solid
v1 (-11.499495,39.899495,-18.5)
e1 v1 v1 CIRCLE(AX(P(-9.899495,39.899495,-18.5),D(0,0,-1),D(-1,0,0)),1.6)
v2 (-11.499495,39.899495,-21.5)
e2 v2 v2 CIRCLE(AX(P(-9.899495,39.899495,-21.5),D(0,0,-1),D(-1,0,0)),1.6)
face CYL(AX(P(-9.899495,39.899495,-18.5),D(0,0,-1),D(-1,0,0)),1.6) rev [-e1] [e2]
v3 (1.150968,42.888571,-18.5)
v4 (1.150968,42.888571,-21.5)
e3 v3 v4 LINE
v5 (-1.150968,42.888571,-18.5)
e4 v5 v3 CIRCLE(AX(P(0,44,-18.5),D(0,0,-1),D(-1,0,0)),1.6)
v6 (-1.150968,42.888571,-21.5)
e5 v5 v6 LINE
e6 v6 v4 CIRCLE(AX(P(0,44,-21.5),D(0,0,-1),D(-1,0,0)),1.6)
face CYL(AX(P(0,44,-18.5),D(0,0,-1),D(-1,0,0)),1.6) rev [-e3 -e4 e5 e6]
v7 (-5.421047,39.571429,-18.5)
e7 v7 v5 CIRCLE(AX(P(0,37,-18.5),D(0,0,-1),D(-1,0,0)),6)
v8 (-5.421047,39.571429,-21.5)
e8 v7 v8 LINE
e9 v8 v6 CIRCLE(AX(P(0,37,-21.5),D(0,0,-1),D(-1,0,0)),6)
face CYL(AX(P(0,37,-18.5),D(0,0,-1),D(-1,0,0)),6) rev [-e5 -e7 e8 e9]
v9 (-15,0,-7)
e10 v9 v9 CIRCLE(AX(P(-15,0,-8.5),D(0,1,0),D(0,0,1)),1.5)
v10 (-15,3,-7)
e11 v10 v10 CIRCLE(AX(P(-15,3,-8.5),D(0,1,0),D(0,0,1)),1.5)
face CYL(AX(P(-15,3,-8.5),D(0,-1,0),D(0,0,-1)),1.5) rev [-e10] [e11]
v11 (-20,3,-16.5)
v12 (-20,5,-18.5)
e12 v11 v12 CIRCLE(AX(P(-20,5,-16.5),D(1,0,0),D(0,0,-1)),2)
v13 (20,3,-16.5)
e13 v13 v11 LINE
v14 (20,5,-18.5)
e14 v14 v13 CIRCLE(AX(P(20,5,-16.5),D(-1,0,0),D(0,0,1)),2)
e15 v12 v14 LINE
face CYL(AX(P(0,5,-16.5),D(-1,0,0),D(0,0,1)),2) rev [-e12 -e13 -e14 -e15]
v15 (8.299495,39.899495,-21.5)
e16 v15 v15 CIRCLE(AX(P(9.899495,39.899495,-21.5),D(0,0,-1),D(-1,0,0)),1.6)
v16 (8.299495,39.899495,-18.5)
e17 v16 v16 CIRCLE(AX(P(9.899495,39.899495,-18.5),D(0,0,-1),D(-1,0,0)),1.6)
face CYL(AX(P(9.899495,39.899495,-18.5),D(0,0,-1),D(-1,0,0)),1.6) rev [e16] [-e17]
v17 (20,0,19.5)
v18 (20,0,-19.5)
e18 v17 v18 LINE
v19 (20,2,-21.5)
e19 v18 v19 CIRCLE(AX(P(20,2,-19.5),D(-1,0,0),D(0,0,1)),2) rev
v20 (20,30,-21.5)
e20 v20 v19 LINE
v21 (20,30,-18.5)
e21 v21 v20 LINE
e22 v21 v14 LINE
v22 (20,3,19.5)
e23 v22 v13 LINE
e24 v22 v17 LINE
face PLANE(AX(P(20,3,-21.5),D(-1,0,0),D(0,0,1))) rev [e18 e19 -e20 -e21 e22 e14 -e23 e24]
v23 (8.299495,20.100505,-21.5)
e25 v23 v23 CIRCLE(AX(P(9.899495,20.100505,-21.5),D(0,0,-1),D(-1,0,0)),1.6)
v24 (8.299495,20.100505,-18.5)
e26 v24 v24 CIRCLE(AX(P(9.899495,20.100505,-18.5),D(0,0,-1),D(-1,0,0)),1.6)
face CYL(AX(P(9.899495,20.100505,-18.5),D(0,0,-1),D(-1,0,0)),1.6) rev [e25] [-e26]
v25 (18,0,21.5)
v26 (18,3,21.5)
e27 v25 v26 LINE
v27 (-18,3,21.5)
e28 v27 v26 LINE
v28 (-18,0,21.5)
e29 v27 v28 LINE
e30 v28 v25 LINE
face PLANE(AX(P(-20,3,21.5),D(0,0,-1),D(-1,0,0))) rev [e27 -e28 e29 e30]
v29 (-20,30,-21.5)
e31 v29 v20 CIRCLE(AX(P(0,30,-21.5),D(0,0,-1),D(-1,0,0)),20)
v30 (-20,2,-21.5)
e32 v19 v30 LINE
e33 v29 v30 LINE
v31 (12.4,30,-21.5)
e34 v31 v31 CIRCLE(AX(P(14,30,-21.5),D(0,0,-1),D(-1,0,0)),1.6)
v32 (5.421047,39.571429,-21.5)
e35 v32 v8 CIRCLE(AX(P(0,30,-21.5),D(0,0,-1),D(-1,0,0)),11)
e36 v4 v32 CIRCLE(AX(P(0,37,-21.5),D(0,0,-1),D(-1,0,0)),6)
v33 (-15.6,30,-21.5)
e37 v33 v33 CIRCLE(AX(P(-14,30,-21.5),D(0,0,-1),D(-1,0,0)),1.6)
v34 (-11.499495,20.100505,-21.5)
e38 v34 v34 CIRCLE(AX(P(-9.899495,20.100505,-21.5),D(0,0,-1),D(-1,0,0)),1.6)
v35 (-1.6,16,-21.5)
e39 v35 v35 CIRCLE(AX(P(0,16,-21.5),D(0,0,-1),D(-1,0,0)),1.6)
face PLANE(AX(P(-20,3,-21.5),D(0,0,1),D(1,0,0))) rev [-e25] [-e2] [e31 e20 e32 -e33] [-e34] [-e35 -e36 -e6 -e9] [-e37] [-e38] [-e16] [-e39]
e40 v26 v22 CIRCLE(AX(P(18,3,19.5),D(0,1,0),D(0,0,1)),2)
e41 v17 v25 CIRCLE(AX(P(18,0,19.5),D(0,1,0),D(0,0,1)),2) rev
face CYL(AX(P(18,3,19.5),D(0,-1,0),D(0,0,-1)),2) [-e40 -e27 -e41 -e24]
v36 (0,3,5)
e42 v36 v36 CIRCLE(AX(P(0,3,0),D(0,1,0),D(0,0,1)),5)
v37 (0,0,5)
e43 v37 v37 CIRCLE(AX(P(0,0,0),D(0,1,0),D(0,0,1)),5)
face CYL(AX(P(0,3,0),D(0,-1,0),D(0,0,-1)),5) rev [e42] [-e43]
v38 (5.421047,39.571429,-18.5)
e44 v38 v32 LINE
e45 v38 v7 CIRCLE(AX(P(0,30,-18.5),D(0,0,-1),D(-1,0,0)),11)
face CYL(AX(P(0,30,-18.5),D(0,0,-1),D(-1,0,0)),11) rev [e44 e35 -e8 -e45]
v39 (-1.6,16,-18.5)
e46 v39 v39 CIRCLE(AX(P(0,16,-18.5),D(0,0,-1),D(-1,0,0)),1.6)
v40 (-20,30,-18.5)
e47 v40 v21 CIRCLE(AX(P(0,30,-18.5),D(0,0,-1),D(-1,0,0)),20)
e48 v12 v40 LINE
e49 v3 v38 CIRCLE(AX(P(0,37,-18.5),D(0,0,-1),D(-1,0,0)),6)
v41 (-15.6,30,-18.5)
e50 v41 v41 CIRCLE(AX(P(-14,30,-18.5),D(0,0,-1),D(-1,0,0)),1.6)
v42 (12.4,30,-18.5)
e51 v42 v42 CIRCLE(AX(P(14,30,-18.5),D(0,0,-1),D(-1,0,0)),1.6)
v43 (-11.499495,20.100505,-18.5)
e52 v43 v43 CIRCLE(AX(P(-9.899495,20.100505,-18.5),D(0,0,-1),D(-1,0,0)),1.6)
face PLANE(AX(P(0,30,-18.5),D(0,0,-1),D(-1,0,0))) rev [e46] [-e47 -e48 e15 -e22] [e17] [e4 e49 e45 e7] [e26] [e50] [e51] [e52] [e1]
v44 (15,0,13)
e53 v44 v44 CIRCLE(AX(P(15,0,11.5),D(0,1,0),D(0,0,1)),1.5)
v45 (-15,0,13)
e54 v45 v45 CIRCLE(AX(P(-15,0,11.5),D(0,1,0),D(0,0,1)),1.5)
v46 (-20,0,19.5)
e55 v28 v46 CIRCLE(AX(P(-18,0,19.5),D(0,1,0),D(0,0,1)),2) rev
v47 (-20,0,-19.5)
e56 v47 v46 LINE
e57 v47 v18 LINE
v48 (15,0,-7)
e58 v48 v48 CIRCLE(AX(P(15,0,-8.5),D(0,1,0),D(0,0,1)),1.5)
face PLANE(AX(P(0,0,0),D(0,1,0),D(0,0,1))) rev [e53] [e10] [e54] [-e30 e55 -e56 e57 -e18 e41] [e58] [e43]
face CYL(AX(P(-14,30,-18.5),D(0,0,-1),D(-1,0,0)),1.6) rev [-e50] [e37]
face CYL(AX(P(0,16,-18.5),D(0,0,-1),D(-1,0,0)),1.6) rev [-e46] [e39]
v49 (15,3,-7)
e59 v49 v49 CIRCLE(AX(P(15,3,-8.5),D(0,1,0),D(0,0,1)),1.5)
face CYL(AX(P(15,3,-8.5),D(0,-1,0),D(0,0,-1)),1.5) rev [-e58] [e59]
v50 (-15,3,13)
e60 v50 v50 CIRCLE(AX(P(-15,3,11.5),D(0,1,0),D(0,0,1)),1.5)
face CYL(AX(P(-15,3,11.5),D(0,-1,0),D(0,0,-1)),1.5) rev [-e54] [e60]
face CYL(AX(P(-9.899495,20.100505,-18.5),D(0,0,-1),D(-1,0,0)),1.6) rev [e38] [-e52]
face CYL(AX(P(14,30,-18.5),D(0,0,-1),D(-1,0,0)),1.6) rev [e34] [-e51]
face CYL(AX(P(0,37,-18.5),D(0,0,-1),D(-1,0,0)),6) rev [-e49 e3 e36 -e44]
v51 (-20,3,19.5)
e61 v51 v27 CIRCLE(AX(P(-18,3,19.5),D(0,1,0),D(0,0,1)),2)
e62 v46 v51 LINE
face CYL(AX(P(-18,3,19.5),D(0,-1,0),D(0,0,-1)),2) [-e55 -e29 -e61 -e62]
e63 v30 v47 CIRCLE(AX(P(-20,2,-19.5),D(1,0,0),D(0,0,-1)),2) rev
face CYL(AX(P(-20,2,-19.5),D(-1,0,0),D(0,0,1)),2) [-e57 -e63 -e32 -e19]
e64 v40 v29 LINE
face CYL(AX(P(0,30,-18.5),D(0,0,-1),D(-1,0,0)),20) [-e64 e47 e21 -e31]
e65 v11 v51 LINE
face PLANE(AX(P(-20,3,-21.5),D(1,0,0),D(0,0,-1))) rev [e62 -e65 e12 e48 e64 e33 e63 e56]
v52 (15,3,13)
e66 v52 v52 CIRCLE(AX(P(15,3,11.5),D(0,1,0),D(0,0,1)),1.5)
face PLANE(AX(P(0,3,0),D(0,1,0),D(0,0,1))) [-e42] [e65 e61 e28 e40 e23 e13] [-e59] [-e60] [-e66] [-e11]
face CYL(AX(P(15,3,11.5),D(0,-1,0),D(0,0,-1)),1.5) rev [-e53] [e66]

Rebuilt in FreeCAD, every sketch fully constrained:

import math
import FreeCAD as App
import Part
import Sketcher

V = App.Vector
Q = App.Units.Quantity


def edges_at(feature, points):
    """Names of the edges that pass closest to the given points."""
    edges = feature.Shape.Edges
    near = lambda p: min(range(len(edges)), key=lambda i: edges[i].distToShape(Part.Vertex(*p))[0])
    return sorted({f"Edge{near(p) + 1}" for p in points})

doc = App.newDocument("Part")
body = doc.addObject("PartDesign::Body", "Body")

# Sketch on XZ plane
sketch1 = body.newObject("Sketcher::SketchObject", "Sketch")
sketch1.AttachmentSupport = (doc.getObject("XZ_Plane"), [""])
sketch1.MapMode = "FlatFace"
sketch1.addGeometry([
    Part.LineSegment(V(-20, -21.5, 0), V(-20, 21.5, 0)),  # 0
    Part.LineSegment(V(-20, 21.5, 0), V(20, 21.5, 0)),  # 1
    Part.LineSegment(V(20, 21.5, 0), V(20, -21.5, 0)),  # 2
    Part.LineSegment(V(20, -21.5, 0), V(-20, -21.5, 0)),  # 3
    Part.Circle(V(-15, 11.5, 0), V(0, 0, 1), 1.5),  # 4
    Part.Circle(V(15, 11.5, 0), V(0, 0, 1), 1.5),  # 5
    Part.Circle(V(-15, -8.5, 0), V(0, 0, 1), 1.5),  # 6
    Part.Circle(V(0, 0, 0), V(0, 0, 1), 5),  # 7
    Part.Circle(V(15, -8.5, 0), V(0, 0, 1), 1.5),  # 8
], False)
sketch1.addConstraint([
    Sketcher.Constraint("Coincident", 0, 2, 1, 1),
    Sketcher.Constraint("Coincident", 1, 2, 2, 1),
    Sketcher.Constraint("Coincident", 2, 2, 3, 1),
    Sketcher.Constraint("Coincident", 3, 2, 0, 1),
    Sketcher.Constraint("Vertical", 0),
    Sketcher.Constraint("Horizontal", 1),
    Sketcher.Constraint("Vertical", 2),
    Sketcher.Constraint("Horizontal", 3),
    Sketcher.Constraint("Coincident", 7, 3, -1, 1),
    Sketcher.Constraint("Equal", 4, 5),
    Sketcher.Constraint("Equal", 5, 6),
    Sketcher.Constraint("Equal", 6, 8),
    Sketcher.Constraint("Symmetric", 0, 2, 2, 2, -1, 1),
    Sketcher.Constraint("Symmetric", 4, 3, 5, 3, -2),
    Sketcher.Constraint("Symmetric", 6, 3, 8, 3, -2),
    Sketcher.Constraint("Vertical", 4, 3, 6, 3),
    Sketcher.Constraint("Diameter", 4, Q("3 mm")),
    Sketcher.Constraint("Diameter", 7, Q("10 mm")),
    Sketcher.Constraint("DistanceX", 1, 1, 1, 2, Q("40 mm")),
    Sketcher.Constraint("DistanceY", 0, 1, 0, 2, Q("43 mm")),
    Sketcher.Constraint("DistanceX", 4, 3, -1, 1, Q("15 mm")),
    Sketcher.Constraint("DistanceY", 6, 3, 4, 3, Q("20 mm")),
    Sketcher.Constraint("DistanceY", 4, 3, 0, 2, Q("10 mm")),
])
pad1 = body.newObject("PartDesign::Pad", "Pad")
pad1.Profile = sketch1
pad1.Length = 3
pad1.Reversed = True

# Sketch on XY plane
sketch2 = body.newObject("Sketcher::SketchObject", "Sketch001")
sketch2.AttachmentSupport = (doc.getObject("XY_Plane"), [""])
sketch2.MapMode = "FlatFace"
sketch2.AttachmentOffset = App.Placement(V(0, 0, -21.5), App.Rotation())
sketch2.addGeometry([
    Part.LineSegment(V(20, 3, 0), V(-20, 3, 0)),  # 0
    Part.LineSegment(V(-20, 3, 0), V(-20, 30, 0)),  # 1
    Part.ArcOfCircle(Part.Circle(V(0, 30, 0), V(0, 0, 1), 20), math.radians(0), math.radians(180)),  # 2
    Part.LineSegment(V(20, 30, 0), V(20, 3, 0)),  # 3
    Part.Circle(V(9.9, 20.1, 0), V(0, 0, 1), 1.6),  # 4
    Part.Circle(V(14, 30, 0), V(0, 0, 1), 1.6),  # 5
    Part.Circle(V(0, 16, 0), V(0, 0, 1), 1.6),  # 6
    Part.Circle(V(-9.9, 20.1, 0), V(0, 0, 1), 1.6),  # 7
    Part.Circle(V(-14, 30, 0), V(0, 0, 1), 1.6),  # 8
    Part.Circle(V(9.9, 39.9, 0), V(0, 0, 1), 1.6),  # 9
    Part.ArcOfCircle(Part.Circle(V(0, 30, 0), V(0, 0, 1), 11), math.radians(120), math.radians(420)),  # 10
    Part.ArcOfCircle(Part.Circle(V(0, 37, 0), V(0, 0, 1), 6), math.radians(25), math.radians(79)),  # 11
    Part.ArcOfCircle(Part.Circle(V(0, 44, 0), V(0, 0, 1), 1.6), math.radians(-44), math.radians(224)),  # 12
    Part.ArcOfCircle(Part.Circle(V(0, 37, 0), V(0, 0, 1), 6), math.radians(101), math.radians(155)),  # 13
    Part.Circle(V(-9.9, 39.9, 0), V(0, 0, 1), 1.6),  # 14
], False)
sketch2.addConstraint([
    Sketcher.Constraint("Coincident", 0, 2, 1, 1),
    Sketcher.Constraint("Tangent", 1, 2, 2, 2),
    Sketcher.Constraint("Tangent", 2, 1, 3, 1),
    Sketcher.Constraint("Coincident", 3, 2, 0, 1),
    Sketcher.Constraint("Coincident", 10, 2, 11, 1),
    Sketcher.Constraint("Coincident", 11, 2, 12, 1),
    Sketcher.Constraint("Coincident", 12, 2, 13, 1),
    Sketcher.Constraint("Coincident", 13, 2, 10, 1),
    Sketcher.Constraint("Horizontal", 0),
    Sketcher.Constraint("Vertical", 1),
    Sketcher.Constraint("Vertical", 3),
    Sketcher.Constraint("Coincident", 10, 3, 2, 3),
    Sketcher.Constraint("Coincident", 13, 3, 11, 3),
    Sketcher.Constraint("Equal", 4, 5),
    Sketcher.Constraint("Equal", 5, 6),
    Sketcher.Constraint("Equal", 6, 7),
    Sketcher.Constraint("Equal", 7, 8),
    Sketcher.Constraint("Equal", 8, 9),
    Sketcher.Constraint("Equal", 9, 12),
    Sketcher.Constraint("Equal", 11, 13),
    Sketcher.Constraint("Equal", 12, 14),
    Sketcher.Constraint("Symmetric", 4, 3, 7, 3, -2),
    Sketcher.Constraint("Symmetric", 5, 3, 8, 3, -2),
    Sketcher.Constraint("Symmetric", 9, 3, 14, 3, -2),
    Sketcher.Constraint("Symmetric", 11, 2, 12, 2, -2),
    Sketcher.Constraint("PointOnObject", 2, 3, -2),
    Sketcher.Constraint("PointOnObject", 6, 3, -2),
    Sketcher.Constraint("Horizontal", 2, 3, 5, 3),
    Sketcher.Constraint("Vertical", 4, 3, 9, 3),
    Sketcher.Constraint("Radius", 2, Q("20 mm")),
    Sketcher.Constraint("Radius", 10, Q("11 mm")),
    Sketcher.Constraint("Radius", 11, Q("6 mm")),
    Sketcher.Constraint("Diameter", 4, Q("3.2 mm")),
    Sketcher.Constraint("DistanceY", 1, 1, 1, 2, Q("27 mm")),
    Sketcher.Constraint("DistanceY", -1, 1, 2, 3, Q("30 mm")),
    Sketcher.Constraint("DistanceX", -1, 1, 5, 3, Q("14 mm")),
    Sketcher.Constraint("DistanceY", -1, 1, 6, 3, Q("16 mm")),
    Sketcher.Constraint("DistanceY", -1, 1, 11, 3, Q("37 mm")),
    Sketcher.Constraint("DistanceY", -1, 1, 12, 3, Q("44 mm")),
    Sketcher.Constraint("DistanceX", 7, 3, 4, 3, Q("19.79899 mm")),
    Sketcher.Constraint("DistanceY", 4, 3, 9, 3, Q("19.79899 mm")),
    Sketcher.Constraint("DistanceY", -1, 1, 4, 3, Q("20.100505 mm")),
])
pad2 = body.newObject("PartDesign::Pad", "Pad001")
pad2.Profile = sketch2
pad2.Length = 3
doc.recompute()

fillet = body.newObject("PartDesign::Fillet", "Fillet")
fillet.Base = (pad2, edges_at(pad2, [
    (0, 3, -18.5),
    (0, 0, -21.5),
    (20, 1.5, 21.5),
    (-20, 1.5, 21.5),
]))
fillet.Radius = 2

doc.recompute()
